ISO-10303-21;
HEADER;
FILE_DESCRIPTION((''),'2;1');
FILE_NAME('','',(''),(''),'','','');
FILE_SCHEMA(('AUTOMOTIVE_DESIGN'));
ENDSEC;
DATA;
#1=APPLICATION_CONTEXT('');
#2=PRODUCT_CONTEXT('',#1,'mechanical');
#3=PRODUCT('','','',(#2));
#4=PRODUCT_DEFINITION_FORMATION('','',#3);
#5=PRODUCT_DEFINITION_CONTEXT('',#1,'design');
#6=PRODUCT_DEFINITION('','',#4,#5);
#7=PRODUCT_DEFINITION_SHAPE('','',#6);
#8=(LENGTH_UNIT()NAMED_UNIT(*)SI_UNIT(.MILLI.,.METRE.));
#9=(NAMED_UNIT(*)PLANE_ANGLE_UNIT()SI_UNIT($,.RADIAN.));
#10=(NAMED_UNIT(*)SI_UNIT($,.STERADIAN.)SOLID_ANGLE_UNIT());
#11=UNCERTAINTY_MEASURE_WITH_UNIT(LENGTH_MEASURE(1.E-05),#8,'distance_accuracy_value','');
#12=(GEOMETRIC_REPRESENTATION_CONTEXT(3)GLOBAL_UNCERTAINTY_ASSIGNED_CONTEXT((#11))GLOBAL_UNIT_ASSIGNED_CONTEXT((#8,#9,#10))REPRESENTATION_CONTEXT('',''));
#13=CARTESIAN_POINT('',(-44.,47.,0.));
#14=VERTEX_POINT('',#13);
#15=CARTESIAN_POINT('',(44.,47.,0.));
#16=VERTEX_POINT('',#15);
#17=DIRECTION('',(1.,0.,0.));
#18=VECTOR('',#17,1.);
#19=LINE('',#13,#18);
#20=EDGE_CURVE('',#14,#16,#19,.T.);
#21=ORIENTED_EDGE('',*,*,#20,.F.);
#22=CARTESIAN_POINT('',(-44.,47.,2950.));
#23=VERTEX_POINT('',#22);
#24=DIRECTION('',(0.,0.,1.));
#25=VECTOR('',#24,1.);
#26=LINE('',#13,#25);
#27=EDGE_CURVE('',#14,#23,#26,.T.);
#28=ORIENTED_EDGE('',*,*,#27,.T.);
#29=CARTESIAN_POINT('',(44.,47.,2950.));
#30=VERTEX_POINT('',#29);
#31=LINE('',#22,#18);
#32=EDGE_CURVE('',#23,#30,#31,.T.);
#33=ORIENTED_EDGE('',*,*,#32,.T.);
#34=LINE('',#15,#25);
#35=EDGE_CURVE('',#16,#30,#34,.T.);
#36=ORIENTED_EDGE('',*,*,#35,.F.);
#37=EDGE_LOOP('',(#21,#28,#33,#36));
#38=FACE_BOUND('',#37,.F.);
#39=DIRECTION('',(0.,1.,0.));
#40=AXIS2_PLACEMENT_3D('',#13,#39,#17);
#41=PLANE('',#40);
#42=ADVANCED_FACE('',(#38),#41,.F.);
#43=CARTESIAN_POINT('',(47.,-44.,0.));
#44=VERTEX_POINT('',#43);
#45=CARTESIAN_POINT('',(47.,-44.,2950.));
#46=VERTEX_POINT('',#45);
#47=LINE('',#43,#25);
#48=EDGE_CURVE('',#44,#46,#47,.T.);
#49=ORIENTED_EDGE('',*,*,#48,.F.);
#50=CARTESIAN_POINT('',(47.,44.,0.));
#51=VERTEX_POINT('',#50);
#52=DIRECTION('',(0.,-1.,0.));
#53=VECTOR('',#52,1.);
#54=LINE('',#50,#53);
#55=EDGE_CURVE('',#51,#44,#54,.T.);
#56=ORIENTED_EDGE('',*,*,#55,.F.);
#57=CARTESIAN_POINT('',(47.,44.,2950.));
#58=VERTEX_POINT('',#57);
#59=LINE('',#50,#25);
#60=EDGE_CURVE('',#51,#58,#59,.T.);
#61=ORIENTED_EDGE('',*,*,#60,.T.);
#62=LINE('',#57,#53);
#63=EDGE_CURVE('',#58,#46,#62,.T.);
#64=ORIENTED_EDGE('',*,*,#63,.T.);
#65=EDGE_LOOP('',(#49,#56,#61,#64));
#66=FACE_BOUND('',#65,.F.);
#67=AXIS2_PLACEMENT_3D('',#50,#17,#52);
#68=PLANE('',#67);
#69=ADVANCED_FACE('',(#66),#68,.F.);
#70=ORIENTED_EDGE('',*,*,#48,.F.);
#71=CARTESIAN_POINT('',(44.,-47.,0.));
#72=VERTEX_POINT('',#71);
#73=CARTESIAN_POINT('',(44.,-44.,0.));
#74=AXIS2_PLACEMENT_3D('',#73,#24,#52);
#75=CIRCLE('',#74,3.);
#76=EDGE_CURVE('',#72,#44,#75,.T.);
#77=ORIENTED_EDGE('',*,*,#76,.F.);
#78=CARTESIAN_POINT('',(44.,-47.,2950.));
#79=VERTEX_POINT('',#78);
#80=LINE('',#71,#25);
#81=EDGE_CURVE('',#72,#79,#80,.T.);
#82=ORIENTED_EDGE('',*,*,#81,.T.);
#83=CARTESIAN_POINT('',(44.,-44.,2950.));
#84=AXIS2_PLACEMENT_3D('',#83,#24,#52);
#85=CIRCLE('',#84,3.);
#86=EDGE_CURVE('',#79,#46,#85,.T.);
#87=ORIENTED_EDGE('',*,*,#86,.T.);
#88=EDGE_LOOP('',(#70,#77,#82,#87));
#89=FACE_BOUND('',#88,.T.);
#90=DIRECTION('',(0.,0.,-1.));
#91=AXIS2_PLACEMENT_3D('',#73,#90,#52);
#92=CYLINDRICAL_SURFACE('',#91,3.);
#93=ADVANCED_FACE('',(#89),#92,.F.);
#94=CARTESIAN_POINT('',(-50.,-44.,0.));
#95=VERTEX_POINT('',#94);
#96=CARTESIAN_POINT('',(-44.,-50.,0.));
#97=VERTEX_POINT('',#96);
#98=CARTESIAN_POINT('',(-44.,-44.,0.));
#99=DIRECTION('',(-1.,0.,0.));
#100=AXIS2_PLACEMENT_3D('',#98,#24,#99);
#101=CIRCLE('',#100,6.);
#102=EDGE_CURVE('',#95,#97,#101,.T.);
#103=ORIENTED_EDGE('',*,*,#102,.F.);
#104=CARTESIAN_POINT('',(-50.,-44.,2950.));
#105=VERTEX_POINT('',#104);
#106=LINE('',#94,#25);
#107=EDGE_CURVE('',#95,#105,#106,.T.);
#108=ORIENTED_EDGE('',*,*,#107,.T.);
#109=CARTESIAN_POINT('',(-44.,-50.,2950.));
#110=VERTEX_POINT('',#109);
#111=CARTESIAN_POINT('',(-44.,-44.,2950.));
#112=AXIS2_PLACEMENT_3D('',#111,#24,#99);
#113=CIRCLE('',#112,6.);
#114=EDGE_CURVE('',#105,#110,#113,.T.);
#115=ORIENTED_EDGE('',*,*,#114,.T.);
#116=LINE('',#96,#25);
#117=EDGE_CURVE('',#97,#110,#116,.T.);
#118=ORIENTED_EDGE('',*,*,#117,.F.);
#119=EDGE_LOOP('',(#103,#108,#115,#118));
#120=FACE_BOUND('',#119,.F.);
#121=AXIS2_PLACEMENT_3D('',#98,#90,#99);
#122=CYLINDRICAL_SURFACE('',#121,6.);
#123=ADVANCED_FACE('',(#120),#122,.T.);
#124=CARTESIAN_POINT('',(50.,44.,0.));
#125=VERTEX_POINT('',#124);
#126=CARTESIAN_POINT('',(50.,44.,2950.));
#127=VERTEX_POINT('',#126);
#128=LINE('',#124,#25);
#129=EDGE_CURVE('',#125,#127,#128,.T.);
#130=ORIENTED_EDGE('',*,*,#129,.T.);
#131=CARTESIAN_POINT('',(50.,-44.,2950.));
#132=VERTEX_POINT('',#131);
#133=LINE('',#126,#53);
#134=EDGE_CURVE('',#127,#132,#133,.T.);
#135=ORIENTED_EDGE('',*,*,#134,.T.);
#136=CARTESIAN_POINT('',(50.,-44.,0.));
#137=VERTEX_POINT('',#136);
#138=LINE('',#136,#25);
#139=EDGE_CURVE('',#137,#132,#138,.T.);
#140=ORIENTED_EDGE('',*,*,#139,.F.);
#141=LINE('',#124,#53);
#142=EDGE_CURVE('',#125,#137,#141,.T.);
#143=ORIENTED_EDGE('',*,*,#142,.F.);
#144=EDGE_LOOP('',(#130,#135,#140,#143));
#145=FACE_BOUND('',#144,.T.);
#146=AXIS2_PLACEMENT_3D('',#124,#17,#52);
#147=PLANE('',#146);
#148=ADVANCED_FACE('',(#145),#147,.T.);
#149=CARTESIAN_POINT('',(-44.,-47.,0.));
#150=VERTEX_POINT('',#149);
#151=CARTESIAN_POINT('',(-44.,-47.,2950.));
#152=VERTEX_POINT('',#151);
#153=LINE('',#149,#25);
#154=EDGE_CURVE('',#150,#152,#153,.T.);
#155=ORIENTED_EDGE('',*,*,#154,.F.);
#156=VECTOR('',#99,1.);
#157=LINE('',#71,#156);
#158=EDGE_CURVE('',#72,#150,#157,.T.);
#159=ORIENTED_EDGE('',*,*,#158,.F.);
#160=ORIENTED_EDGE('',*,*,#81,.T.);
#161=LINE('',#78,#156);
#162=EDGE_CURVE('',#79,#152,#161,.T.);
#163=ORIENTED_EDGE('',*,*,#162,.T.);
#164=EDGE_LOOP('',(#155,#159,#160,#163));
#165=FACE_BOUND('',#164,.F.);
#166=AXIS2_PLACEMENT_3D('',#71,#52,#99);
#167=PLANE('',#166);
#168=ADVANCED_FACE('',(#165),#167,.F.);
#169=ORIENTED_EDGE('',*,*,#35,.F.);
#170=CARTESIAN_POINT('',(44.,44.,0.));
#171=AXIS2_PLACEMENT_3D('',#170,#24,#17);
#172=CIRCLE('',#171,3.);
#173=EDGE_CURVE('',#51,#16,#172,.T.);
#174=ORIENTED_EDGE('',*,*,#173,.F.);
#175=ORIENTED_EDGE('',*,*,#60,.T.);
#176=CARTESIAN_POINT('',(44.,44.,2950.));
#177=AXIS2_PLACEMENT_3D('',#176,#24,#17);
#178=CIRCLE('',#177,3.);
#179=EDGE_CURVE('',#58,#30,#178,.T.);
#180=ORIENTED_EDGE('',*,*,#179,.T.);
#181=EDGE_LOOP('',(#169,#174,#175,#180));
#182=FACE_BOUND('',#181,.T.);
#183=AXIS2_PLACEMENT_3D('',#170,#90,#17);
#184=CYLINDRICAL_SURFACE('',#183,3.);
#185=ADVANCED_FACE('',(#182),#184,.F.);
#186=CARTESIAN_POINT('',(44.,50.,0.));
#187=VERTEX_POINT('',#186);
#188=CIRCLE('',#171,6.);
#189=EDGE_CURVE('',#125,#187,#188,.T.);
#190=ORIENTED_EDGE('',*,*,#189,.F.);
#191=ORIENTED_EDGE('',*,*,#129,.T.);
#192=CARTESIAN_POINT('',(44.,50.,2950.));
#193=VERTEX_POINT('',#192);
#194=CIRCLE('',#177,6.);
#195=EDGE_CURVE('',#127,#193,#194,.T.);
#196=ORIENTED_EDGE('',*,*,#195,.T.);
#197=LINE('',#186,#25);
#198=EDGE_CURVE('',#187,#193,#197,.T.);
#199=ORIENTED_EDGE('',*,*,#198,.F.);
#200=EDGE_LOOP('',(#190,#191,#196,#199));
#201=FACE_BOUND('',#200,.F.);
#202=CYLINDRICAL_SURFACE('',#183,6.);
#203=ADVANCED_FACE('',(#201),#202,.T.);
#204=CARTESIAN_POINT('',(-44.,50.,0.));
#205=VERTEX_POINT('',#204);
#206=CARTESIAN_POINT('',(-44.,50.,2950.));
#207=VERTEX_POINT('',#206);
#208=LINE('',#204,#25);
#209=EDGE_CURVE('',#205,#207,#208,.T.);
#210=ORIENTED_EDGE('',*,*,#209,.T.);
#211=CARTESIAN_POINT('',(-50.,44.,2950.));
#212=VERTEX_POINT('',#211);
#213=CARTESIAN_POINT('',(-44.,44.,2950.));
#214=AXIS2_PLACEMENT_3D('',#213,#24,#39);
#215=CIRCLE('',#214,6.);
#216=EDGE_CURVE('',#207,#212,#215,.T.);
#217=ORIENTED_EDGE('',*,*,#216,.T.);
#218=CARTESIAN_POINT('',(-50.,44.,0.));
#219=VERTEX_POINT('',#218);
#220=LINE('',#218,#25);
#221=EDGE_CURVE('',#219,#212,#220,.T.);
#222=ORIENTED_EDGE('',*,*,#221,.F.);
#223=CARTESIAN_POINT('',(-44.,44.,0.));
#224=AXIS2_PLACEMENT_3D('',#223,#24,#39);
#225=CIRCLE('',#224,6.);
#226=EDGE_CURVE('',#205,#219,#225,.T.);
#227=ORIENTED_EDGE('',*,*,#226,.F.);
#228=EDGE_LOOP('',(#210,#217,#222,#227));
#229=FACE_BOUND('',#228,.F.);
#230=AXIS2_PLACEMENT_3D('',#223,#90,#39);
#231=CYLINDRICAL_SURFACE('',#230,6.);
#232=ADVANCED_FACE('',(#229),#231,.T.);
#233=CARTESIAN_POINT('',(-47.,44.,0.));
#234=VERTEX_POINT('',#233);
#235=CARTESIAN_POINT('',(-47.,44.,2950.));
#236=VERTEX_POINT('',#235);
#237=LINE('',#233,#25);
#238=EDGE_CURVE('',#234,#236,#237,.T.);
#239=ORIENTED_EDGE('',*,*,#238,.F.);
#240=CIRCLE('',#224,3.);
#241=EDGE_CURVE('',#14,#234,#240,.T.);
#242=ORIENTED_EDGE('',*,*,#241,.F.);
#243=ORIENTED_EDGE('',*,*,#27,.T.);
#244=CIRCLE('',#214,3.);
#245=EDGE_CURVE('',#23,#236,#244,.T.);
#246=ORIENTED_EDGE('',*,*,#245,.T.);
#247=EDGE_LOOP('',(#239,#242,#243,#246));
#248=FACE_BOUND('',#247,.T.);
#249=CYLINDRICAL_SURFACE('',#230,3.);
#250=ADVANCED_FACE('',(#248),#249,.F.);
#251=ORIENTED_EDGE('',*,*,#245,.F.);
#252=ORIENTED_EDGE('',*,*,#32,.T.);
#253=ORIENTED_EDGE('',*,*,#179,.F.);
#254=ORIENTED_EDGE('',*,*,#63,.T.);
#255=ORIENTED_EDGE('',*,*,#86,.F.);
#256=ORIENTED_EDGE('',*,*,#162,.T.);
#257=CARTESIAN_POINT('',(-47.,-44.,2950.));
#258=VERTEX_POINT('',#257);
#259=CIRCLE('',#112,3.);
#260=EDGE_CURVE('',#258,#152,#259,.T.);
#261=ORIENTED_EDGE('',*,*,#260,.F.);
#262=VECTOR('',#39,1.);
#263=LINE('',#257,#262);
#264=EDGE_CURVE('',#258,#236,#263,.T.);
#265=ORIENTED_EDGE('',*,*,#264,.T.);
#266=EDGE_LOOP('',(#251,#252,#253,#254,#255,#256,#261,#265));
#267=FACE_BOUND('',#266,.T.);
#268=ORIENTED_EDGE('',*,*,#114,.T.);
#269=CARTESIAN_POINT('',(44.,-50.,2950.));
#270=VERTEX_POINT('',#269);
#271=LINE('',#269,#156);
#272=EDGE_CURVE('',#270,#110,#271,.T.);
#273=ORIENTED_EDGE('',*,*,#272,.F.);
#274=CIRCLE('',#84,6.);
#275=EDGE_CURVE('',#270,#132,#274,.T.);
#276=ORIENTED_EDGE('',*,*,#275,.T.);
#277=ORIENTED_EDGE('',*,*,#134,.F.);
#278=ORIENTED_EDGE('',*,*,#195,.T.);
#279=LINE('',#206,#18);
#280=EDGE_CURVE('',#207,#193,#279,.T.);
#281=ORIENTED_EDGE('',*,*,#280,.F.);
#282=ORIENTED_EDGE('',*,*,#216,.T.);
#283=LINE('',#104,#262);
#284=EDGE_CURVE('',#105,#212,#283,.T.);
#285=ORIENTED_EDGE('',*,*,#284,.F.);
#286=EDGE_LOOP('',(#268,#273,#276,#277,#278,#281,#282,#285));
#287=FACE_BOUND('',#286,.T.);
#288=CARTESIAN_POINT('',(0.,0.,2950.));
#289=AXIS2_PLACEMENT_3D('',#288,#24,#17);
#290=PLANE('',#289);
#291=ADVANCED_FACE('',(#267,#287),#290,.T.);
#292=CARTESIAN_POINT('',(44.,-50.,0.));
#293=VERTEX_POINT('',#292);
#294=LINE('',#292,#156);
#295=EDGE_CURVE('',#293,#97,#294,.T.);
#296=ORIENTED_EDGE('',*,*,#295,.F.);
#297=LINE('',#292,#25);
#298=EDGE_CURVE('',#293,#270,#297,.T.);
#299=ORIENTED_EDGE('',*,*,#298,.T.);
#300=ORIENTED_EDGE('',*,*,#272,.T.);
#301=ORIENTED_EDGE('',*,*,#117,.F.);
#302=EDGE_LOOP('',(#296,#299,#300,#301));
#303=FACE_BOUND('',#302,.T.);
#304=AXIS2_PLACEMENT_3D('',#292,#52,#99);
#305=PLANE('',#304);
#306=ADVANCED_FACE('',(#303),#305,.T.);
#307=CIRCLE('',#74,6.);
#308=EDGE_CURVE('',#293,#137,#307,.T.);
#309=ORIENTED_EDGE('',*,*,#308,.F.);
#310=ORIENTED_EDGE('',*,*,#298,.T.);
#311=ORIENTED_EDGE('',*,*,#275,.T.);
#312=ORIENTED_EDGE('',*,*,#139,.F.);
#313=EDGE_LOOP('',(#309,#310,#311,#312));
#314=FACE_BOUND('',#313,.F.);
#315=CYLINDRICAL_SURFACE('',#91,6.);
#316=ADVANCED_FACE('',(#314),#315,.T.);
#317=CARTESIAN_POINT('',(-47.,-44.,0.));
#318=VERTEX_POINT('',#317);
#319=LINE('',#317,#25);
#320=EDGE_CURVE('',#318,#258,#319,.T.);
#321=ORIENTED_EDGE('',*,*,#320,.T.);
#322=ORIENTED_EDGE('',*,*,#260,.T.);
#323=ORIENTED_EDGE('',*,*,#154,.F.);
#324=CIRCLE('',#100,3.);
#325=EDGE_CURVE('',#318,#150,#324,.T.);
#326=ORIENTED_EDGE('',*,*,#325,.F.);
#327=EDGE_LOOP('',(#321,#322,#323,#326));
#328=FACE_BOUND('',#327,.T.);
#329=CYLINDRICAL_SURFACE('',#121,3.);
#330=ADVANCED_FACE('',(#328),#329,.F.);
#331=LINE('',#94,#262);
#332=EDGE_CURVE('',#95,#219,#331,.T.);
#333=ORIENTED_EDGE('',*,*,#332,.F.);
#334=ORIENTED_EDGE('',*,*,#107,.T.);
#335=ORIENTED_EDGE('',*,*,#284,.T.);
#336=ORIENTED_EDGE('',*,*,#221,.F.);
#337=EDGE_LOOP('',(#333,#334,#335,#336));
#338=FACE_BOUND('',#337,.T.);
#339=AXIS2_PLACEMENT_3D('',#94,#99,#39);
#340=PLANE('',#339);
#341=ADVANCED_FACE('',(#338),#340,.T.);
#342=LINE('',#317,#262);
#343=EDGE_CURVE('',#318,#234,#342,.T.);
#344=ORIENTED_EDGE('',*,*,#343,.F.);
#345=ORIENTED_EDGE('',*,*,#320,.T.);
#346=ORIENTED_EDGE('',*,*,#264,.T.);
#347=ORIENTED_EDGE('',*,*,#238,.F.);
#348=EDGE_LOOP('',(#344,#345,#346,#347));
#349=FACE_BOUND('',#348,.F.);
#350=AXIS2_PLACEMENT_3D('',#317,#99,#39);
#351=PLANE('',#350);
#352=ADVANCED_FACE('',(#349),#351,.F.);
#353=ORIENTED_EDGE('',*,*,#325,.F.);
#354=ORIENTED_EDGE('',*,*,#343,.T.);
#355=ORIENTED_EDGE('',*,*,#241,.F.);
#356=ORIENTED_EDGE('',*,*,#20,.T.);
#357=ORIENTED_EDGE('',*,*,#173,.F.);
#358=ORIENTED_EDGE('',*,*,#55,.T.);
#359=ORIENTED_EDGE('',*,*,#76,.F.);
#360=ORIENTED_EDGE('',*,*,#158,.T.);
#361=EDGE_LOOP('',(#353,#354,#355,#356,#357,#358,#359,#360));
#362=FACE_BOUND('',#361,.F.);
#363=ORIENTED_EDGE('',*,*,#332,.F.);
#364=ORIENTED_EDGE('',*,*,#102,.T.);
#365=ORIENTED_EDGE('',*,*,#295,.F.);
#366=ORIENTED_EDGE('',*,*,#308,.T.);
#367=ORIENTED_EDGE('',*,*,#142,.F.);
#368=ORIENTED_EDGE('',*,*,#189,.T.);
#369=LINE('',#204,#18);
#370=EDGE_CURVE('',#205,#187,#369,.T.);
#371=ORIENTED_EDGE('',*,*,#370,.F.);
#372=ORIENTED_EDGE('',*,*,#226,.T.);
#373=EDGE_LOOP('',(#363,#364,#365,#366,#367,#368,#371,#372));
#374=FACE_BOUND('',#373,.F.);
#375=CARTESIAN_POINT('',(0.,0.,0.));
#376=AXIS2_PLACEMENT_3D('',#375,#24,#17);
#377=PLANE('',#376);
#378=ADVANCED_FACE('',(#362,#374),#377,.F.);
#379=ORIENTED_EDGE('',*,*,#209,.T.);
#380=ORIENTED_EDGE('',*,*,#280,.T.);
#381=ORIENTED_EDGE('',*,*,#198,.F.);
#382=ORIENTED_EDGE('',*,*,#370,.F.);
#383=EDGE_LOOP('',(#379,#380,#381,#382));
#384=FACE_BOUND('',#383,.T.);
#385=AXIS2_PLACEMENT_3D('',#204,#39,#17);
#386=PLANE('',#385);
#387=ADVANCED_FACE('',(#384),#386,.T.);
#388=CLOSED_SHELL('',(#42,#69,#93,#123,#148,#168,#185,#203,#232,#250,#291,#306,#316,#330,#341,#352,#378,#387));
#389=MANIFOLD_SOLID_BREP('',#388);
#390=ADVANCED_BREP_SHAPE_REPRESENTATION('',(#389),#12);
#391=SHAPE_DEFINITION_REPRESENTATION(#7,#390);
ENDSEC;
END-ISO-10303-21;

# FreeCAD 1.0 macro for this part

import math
import FreeCAD as App
import Part
import Sketcher
Q = App.Units.Quantity

doc = App.newDocument("Part")
body = doc.addObject("PartDesign::Body", "Body")

# Sketch on XY plane
sketch1 = body.newObject("Sketcher::SketchObject", "Sketch")
sketch1.AttachmentSupport = (doc.getObject("XY_Plane"), [""])
sketch1.MapMode = "FlatFace"
sketch1.addGeometry([
    Part.LineSegment(App.Vector(-50, 44, 0), App.Vector(-50, -44, 0)),  # 0
    Part.ArcOfCircle(Part.Circle(App.Vector(-44, -44, 0), App.Vector(0, 0, 1), 6), math.radians(180), math.radians(270)),  # 1
    Part.LineSegment(App.Vector(-44, -50, 0), App.Vector(44, -50, 0)),  # 2
    Part.ArcOfCircle(Part.Circle(App.Vector(44, -44, 0), App.Vector(0, 0, 1), 6), math.radians(-90), math.radians(0)),  # 3
    Part.LineSegment(App.Vector(50, -44, 0), App.Vector(50, 44, 0)),  # 4
    Part.ArcOfCircle(Part.Circle(App.Vector(44, 44, 0), App.Vector(0, 0, 1), 6), math.radians(0), math.radians(90)),  # 5
    Part.LineSegment(App.Vector(44, 50, 0), App.Vector(-44, 50, 0)),  # 6
    Part.ArcOfCircle(Part.Circle(App.Vector(-44, 44, 0), App.Vector(0, 0, 1), 6), math.radians(90), math.radians(180)),  # 7
    Part.ArcOfCircle(Part.Circle(App.Vector(-44, 44, 0), App.Vector(0, 0, 1), 3), math.radians(90), math.radians(180)),  # 8
    Part.LineSegment(App.Vector(-44, 47, 0), App.Vector(44, 47, 0)),  # 9
    Part.ArcOfCircle(Part.Circle(App.Vector(44, 44, 0), App.Vector(0, 0, 1), 3), math.radians(0), math.radians(90)),  # 10
    Part.LineSegment(App.Vector(47, 44, 0), App.Vector(47, -44, 0)),  # 11
    Part.ArcOfCircle(Part.Circle(App.Vector(44, -44, 0), App.Vector(0, 0, 1), 3), math.radians(-90), math.radians(0)),  # 12
    Part.LineSegment(App.Vector(44, -47, 0), App.Vector(-44, -47, 0)),  # 13
    Part.ArcOfCircle(Part.Circle(App.Vector(-44, -44, 0), App.Vector(0, 0, 1), 3), math.radians(180), math.radians(270)),  # 14
    Part.LineSegment(App.Vector(-47, -44, 0), App.Vector(-47, 44, 0)),  # 15
], False)
sketch1.addConstraint([
    Sketcher.Constraint("Tangent", 0, 2, 1, 1),
    Sketcher.Constraint("Tangent", 1, 2, 2, 1),
    Sketcher.Constraint("Tangent", 2, 2, 3, 1),
    Sketcher.Constraint("Tangent", 3, 2, 4, 1),
    Sketcher.Constraint("Tangent", 4, 2, 5, 1),
    Sketcher.Constraint("Tangent", 5, 2, 6, 1),
    Sketcher.Constraint("Tangent", 6, 2, 7, 1),
    Sketcher.Constraint("Tangent", 7, 2, 0, 1),
    Sketcher.Constraint("Tangent", 8, 1, 9, 1),
    Sketcher.Constraint("Tangent", 9, 2, 10, 2),
    Sketcher.Constraint("Tangent", 10, 1, 11, 1),
    Sketcher.Constraint("Tangent", 11, 2, 12, 2),
    Sketcher.Constraint("Tangent", 12, 1, 13, 1),
    Sketcher.Constraint("Tangent", 13, 2, 14, 2),
    Sketcher.Constraint("Tangent", 14, 1, 15, 1),
    Sketcher.Constraint("Tangent", 15, 2, 8, 2),
    Sketcher.Constraint("Vertical", 0),
    Sketcher.Constraint("Horizontal", 2),
    Sketcher.Constraint("Vertical", 4),
    Sketcher.Constraint("Horizontal", 6),
    Sketcher.Constraint("Horizontal", 9),
    Sketcher.Constraint("Vertical", 11),
    Sketcher.Constraint("Horizontal", 13),
    Sketcher.Constraint("Vertical", 15),
    Sketcher.Constraint("Coincident", 8, 3, 7, 3),
    Sketcher.Constraint("Coincident", 10, 3, 5, 3),
    Sketcher.Constraint("Coincident", 12, 3, 3, 3),
    Sketcher.Constraint("Equal", 1, 3),
    Sketcher.Constraint("Equal", 3, 5),
    Sketcher.Constraint("Equal", 5, 7),
    Sketcher.Constraint("Equal", 12, 14),
    Sketcher.Constraint("Symmetric", 1, 3, 5, 3, -1, 1),
    Sketcher.Constraint("Equal", 13, 0),
    Sketcher.Constraint("Radius", 1, Q("6 mm")),
    Sketcher.Constraint("Radius", 8, Q("3 mm")),
    Sketcher.Constraint("DistanceX", 0, 2, -1, 1, Q("50 mm")),
])
pad1 = body.newObject("PartDesign::Pad", "Pad")
pad1.Profile = sketch1
pad1.Length = 2950

doc.recompute()
